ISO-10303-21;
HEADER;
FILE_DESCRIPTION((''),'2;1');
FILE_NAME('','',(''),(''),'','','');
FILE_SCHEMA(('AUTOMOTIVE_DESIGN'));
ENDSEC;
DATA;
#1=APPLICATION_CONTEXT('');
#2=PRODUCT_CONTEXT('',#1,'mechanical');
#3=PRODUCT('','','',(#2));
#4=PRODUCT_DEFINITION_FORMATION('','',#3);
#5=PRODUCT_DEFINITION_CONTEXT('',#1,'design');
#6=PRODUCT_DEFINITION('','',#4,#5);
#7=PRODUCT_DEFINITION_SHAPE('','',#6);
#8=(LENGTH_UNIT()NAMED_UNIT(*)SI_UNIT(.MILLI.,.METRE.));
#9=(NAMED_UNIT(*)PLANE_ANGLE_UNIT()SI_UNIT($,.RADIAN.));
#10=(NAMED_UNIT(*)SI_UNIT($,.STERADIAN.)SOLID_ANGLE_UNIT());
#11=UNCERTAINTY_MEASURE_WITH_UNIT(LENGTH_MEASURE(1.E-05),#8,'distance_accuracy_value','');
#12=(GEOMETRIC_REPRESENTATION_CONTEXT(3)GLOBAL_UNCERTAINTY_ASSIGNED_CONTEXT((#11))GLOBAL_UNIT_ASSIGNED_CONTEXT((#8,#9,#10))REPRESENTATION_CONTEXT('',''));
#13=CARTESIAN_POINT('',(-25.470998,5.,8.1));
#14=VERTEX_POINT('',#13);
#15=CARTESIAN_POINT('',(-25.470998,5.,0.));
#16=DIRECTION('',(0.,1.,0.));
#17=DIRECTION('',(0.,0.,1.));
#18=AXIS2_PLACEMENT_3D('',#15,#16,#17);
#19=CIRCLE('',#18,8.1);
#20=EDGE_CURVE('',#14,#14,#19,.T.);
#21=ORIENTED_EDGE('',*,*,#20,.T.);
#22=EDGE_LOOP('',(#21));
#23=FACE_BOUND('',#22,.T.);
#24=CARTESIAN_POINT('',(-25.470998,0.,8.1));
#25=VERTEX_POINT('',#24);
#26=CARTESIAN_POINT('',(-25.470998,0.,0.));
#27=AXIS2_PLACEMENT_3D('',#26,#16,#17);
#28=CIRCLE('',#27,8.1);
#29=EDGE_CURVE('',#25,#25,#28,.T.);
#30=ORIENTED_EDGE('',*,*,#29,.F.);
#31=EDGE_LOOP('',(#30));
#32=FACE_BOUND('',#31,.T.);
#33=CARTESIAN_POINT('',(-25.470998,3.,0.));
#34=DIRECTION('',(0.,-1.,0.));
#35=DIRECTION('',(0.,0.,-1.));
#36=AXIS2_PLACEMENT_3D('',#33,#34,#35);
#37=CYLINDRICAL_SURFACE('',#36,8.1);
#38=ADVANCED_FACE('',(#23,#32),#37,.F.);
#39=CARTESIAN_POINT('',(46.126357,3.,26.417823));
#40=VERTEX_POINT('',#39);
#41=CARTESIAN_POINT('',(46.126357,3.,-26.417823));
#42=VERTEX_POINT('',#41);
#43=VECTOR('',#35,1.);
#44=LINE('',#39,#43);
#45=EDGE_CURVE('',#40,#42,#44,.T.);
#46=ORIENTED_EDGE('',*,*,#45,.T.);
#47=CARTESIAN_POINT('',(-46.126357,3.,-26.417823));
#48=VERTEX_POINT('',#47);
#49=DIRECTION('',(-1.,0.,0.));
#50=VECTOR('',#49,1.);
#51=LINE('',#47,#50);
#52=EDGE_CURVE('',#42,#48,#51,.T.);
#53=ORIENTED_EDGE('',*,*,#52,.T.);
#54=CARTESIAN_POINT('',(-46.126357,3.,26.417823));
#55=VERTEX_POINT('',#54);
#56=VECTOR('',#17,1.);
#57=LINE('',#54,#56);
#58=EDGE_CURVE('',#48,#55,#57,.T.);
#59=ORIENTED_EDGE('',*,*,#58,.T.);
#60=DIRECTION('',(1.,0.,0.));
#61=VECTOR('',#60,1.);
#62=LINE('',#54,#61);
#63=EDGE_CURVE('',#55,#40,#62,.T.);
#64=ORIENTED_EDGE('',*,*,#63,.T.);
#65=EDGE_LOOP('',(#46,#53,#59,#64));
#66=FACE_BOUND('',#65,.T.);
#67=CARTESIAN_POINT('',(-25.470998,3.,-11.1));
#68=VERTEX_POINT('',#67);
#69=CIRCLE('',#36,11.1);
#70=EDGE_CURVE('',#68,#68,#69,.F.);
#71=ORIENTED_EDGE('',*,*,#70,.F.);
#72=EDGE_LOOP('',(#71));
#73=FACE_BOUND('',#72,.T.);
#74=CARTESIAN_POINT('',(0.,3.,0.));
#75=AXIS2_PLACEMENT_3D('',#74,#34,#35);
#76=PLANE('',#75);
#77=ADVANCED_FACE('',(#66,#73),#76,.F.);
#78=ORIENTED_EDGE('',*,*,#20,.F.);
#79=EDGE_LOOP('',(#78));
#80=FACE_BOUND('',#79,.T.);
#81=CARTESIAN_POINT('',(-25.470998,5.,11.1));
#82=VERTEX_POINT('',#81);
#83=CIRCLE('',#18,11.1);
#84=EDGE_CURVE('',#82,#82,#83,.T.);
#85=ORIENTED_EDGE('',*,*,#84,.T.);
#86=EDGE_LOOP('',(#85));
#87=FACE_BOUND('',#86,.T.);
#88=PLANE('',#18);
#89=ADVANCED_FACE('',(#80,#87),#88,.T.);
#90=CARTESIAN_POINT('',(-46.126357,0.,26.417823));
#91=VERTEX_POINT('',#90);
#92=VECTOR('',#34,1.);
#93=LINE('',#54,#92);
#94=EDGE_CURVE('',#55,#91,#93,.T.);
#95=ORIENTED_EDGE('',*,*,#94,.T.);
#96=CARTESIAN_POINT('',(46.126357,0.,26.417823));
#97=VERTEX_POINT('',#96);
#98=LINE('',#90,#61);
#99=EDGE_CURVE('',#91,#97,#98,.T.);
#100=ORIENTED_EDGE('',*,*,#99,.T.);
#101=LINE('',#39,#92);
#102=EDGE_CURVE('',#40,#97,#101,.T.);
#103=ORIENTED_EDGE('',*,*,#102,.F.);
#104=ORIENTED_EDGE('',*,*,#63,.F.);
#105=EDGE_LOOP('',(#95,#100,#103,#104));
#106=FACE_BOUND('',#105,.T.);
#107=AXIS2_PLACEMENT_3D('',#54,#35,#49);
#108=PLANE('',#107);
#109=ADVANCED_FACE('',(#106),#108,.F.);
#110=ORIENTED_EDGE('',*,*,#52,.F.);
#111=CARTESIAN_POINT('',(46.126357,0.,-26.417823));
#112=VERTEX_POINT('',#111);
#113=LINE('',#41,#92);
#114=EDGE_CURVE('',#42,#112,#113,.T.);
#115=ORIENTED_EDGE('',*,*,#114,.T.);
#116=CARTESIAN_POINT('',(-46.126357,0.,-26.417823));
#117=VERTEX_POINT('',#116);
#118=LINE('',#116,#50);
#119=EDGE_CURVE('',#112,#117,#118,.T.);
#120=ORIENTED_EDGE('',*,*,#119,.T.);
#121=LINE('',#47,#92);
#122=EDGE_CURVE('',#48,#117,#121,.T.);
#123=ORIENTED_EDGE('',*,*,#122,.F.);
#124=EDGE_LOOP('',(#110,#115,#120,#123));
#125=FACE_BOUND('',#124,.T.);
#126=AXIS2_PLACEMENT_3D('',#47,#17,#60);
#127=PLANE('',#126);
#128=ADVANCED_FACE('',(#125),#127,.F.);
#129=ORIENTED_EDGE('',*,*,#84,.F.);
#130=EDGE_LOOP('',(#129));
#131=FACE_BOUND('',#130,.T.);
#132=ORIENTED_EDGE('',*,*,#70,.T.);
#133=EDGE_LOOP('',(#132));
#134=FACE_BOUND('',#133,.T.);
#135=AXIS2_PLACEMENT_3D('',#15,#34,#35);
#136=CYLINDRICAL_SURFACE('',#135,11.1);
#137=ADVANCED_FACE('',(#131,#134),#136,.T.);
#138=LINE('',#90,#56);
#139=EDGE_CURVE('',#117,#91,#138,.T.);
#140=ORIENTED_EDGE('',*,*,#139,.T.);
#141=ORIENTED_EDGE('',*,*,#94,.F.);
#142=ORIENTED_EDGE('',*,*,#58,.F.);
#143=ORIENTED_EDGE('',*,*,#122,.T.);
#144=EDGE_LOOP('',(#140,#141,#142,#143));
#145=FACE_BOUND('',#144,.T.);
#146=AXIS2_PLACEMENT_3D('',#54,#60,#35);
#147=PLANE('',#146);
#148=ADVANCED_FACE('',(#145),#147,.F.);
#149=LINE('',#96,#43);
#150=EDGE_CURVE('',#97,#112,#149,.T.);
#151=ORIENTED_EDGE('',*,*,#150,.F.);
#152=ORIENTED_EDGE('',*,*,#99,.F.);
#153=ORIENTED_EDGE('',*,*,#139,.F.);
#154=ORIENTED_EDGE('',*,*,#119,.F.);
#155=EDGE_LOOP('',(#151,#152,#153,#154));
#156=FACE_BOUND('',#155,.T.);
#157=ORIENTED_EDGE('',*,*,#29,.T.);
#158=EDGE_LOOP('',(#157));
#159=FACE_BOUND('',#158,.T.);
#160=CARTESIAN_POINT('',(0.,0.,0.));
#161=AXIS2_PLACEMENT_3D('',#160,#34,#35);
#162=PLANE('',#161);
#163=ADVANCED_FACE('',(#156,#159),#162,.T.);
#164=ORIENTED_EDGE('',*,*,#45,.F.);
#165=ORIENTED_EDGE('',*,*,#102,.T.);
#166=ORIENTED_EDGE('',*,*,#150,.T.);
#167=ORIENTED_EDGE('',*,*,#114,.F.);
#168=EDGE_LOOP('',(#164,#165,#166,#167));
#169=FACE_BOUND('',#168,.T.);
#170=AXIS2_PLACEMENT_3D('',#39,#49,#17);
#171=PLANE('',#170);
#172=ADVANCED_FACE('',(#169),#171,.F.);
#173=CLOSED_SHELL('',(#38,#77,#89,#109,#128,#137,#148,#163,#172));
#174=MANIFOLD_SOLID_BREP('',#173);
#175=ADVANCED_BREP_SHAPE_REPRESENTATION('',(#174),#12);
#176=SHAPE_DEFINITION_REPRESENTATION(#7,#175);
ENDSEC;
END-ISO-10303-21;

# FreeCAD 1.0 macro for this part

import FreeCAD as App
import Part
import Sketcher

V = App.Vector
Q = App.Units.Quantity


def add_polygon(sketch, points):
    """Adds a closed chain of lines whose ends are joined by coincident constraints."""
    first, n = sketch.GeometryCount, len(points)
    for a, b in zip(points, points[1:] + points[:1]):
        sketch.addGeometry(Part.LineSegment(App.Vector(*a, 0), App.Vector(*b, 0)), False)
    for i in range(n):
        sketch.addConstraint(Sketcher.Constraint("Coincident", first + i, 2, first + (i + 1) % n, 1))

doc = App.newDocument("Part")
body = doc.addObject("PartDesign::Body", "Body")

# Sketch on XZ plane
sketch1 = doc.addObject("Sketcher::SketchObject", "Sketch")
body.addObject(sketch1)
sketch1.AttachmentSupport = (doc.XZ_Plane, [""])
sketch1.MapMode = "FlatFace"
add_polygon(sketch1, [(-46.126357, -26.417823), (-46.126357, 26.417823), (46.126357, 26.417823), (46.126357, -26.417823)])  # lines 0-3
sketch1.addGeometry(Part.Circle(V(-25.470998, 0, 0), V(0, 0, 1), 8.1), False)  # 4
sketch1.addConstraint([
    Sketcher.Constraint("Vertical", 0),
    Sketcher.Constraint("Horizontal", 1),
    Sketcher.Constraint("Vertical", 2),
    Sketcher.Constraint("Horizontal", 3),
    Sketcher.Constraint("Symmetric", 0, 2, 2, 2, -1, 1),
    Sketcher.Constraint("PointOnObject", 4, 3, -1),
    Sketcher.Constraint("Diameter", 4, Q("16.2 mm")),
    Sketcher.Constraint("DistanceX", 4, 3, -1, 1, Q("25.470998 mm")),
    Sketcher.Constraint("DistanceX", 1, 1, 1, 2, Q("92.252714 mm")),
    Sketcher.Constraint("DistanceY", 0, 1, 0, 2, Q("52.835645 mm")),
])
pad1 = doc.addObject("PartDesign::Pad", "Pad")
body.addObject(pad1)
pad1.Profile = sketch1
pad1.Length = 3
pad1.Reversed = True

# Sketch on XZ plane
sketch2 = doc.addObject("Sketcher::SketchObject", "Sketch001")
body.addObject(sketch2)
sketch2.AttachmentSupport = (doc.XZ_Plane, [""])
sketch2.MapMode = "FlatFace"
sketch2.AttachmentOffset = App.Placement(V(0, 0, -3), App.Rotation())
sketch2.addGeometry([
    Part.Circle(V(-25.470998, 0, 0), V(0, 0, 1), 11.1),
    Part.Circle(V(-25.470998, 0, 0), V(0, 0, 1), 8.1),
], False)
sketch2.addConstraint([
    Sketcher.Constraint("Coincident", 1, 3, 0, 3),
    Sketcher.Constraint("PointOnObject", 0, 3, -1),
    Sketcher.Constraint("Diameter", 0, Q("22.2 mm")),
    Sketcher.Constraint("Diameter", 1, Q("16.2 mm")),
    Sketcher.Constraint("DistanceX", 0, 3, -1, 1, Q("25.470998 mm")),
])
pad2 = doc.addObject("PartDesign::Pad", "Pad001")
body.addObject(pad2)
pad2.Profile = sketch2
pad2.Length = 2
pad2.Reversed = True

doc.recompute()
